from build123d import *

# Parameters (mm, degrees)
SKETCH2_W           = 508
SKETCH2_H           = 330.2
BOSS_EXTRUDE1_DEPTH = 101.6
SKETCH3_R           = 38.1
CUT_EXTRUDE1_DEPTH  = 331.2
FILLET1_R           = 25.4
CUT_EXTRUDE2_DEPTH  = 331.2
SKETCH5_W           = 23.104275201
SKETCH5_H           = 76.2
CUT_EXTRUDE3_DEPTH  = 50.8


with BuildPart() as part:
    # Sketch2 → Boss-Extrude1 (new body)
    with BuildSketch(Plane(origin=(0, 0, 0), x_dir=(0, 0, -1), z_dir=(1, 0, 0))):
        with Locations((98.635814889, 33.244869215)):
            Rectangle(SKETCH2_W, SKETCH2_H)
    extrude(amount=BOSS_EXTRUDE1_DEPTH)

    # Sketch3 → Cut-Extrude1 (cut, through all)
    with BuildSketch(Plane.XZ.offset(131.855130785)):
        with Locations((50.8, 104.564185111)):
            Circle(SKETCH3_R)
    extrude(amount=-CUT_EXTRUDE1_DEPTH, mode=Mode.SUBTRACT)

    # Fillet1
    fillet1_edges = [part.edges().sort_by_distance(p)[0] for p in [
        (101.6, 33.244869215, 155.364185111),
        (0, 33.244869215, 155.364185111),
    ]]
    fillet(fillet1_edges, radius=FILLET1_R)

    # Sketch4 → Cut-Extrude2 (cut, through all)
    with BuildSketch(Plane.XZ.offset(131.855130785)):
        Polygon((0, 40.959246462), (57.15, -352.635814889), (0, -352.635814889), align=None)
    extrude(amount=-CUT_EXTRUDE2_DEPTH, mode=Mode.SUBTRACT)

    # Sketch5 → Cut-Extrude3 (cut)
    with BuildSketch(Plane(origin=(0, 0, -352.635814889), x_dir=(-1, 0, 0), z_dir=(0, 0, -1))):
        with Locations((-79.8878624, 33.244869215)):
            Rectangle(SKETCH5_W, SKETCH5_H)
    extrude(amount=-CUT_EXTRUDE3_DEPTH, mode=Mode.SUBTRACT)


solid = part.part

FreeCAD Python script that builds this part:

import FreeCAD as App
import Part
import Sketcher

V = App.Vector
Q = App.Units.Quantity


def edges_at(feature, points):
    """Names of the edges that pass closest to the given points."""
    edges = feature.Shape.Edges
    near = lambda p: min(range(len(edges)), key=lambda i: edges[i].distToShape(Part.Vertex(*p))[0])
    return sorted({f"Edge{near(p) + 1}" for p in points})

doc = App.newDocument("Part")
body = doc.addObject("PartDesign::Body", "Body")

# Sketch on YZ plane
sketch1 = doc.addObject("Sketcher::SketchObject", "Sketch")
body.addObject(sketch1)
sketch1.AttachmentSupport = (doc.YZ_Plane, [""])
sketch1.MapMode = "FlatFace"
sketch1.addGeometry(Part.LineSegment(V(198, 155, 0), V(-132, 155, 0)), False)
sketch1.addGeometry(Part.LineSegment(V(-132, 155, 0), V(-132, -353, 0)), False)
sketch1.addGeometry(Part.LineSegment(V(-132, -353, 0), V(198, -353, 0)), False)
sketch1.addGeometry(Part.LineSegment(V(198, -353, 0), V(198, 155, 0)), False)
sketch1.addConstraint(Sketcher.Constraint("Coincident", 0, 2, 1, 1))
sketch1.addConstraint(Sketcher.Constraint("Coincident", 1, 2, 2, 1))
sketch1.addConstraint(Sketcher.Constraint("Coincident", 2, 2, 3, 1))
sketch1.addConstraint(Sketcher.Constraint("Coincident", 3, 2, 0, 1))
sketch1.addConstraint(Sketcher.Constraint("Horizontal", 0))
sketch1.addConstraint(Sketcher.Constraint("Vertical", 1))
sketch1.addConstraint(Sketcher.Constraint("Horizontal", 2))
sketch1.addConstraint(Sketcher.Constraint("Vertical", 3))
sketch1.addConstraint(Sketcher.Constraint("DistanceX", 0, 2, 0, 1, Q("13 in")))
sketch1.addConstraint(Sketcher.Constraint("DistanceY", 1, 2, 1, 1, Q("20 in")))
sketch1.addConstraint(Sketcher.Constraint("DistanceX", 0, 2, -1, 1, Q("131.855131 mm")))
sketch1.addConstraint(Sketcher.Constraint("DistanceY", -1, 1, 0, 2, Q("155.364185 mm")))
pad1 = doc.addObject("PartDesign::Pad", "Pad")
body.addObject(pad1)
pad1.Profile = sketch1
pad1.Length = Q("4 in")

# Sketch on XZ plane
sketch2 = doc.addObject("Sketcher::SketchObject", "Sketch001")
body.addObject(sketch2)
sketch2.AttachmentSupport = (doc.XZ_Plane, [""])
sketch2.MapMode = "FlatFace"
sketch2.AttachmentOffset = App.Placement(V(0, 0, 131.855131), App.Rotation())
sketch2.addGeometry(Part.Circle(V(51, 105, 0), V(0, 0, 1), 38), False)
sketch2.addConstraint(Sketcher.Constraint("Diameter", 0, Q("3 in")))
sketch2.addConstraint(Sketcher.Constraint("DistanceX", -1, 1, 0, 3, Q("2 in")))
sketch2.addConstraint(Sketcher.Constraint("DistanceY", -1, 1, 0, 3, Q("104.564185 mm")))
pocket1 = doc.addObject("PartDesign::Pocket", "Pocket")
body.addObject(pocket1)
pocket1.Profile = sketch2
pocket1.Type = "ThroughAll"
doc.recompute()

fillet = doc.addObject("PartDesign::Fillet", "Fillet")
body.addObject(fillet)
fillet.Base = (pocket1, edges_at(pocket1, [(101.6, 33.245, 155.364), (0, 33.245, 155.364)]))
fillet.Radius = Q("1 in")

# Sketch on XZ plane
sketch3 = doc.addObject("Sketcher::SketchObject", "Sketch002")
body.addObject(sketch3)
sketch3.AttachmentSupport = (doc.XZ_Plane, [""])
sketch3.MapMode = "FlatFace"
sketch3.AttachmentOffset = App.Placement(V(0, 0, 131.855131), App.Rotation())
sketch3.addGeometry(Part.LineSegment(V(57, -353, 0), V(0, 41, 0)), False)
sketch3.addGeometry(Part.LineSegment(V(0, 41, 0), V(0, -353, 0)), False)
sketch3.addGeometry(Part.LineSegment(V(0, -353, 0), V(57, -353, 0)), False)
sketch3.addConstraint(Sketcher.Constraint("Coincident", 0, 2, 1, 1))
sketch3.addConstraint(Sketcher.Constraint("Coincident", 1, 2, 2, 1))
sketch3.addConstraint(Sketcher.Constraint("Coincident", 2, 2, 0, 1))
sketch3.addConstraint(Sketcher.Constraint("Vertical", 1))
sketch3.addConstraint(Sketcher.Constraint("Horizontal", 2))
sketch3.addConstraint(Sketcher.Constraint("PointOnObject", 0, 2, -2))
sketch3.addConstraint(Sketcher.Constraint("DistanceX", 2, 1, 2, 2, Q("2.25 in")))
sketch3.addConstraint(Sketcher.Constraint("DistanceY", 1, 2, 1, 1, Q("393.595061 mm")))
sketch3.addConstraint(Sketcher.Constraint("DistanceY", -1, 1, 0, 2, Q("40.959246 mm")))
pocket2 = doc.addObject("PartDesign::Pocket", "Pocket001")
body.addObject(pocket2)
pocket2.Profile = sketch3
pocket2.Type = "ThroughAll"

# Sketch on XY plane
sketch4 = doc.addObject("Sketcher::SketchObject", "Sketch003")
body.addObject(sketch4)
sketch4.AttachmentSupport = (doc.XY_Plane, [""])
sketch4.MapMode = "FlatFace"
sketch4.AttachmentOffset = App.Placement(V(0, 0, -352.635815), App.Rotation())
sketch4.addGeometry(Part.LineSegment(V(91, 71, 0), V(91, -5, 0)), False)
sketch4.addGeometry(Part.LineSegment(V(91, -5, 0), V(68, -5, 0)), False)
sketch4.addGeometry(Part.LineSegment(V(68, -5, 0), V(68, 71, 0)), False)
sketch4.addGeometry(Part.LineSegment(V(68, 71, 0), V(91, 71, 0)), False)
sketch4.addConstraint(Sketcher.Constraint("Coincident", 0, 2, 1, 1))
sketch4.addConstraint(Sketcher.Constraint("Coincident", 1, 2, 2, 1))
sketch4.addConstraint(Sketcher.Constraint("Coincident", 2, 2, 3, 1))
sketch4.addConstraint(Sketcher.Constraint("Coincident", 3, 2, 0, 1))
sketch4.addConstraint(Sketcher.Constraint("Vertical", 0))
sketch4.addConstraint(Sketcher.Constraint("Horizontal", 1))
sketch4.addConstraint(Sketcher.Constraint("Vertical", 2))
sketch4.addConstraint(Sketcher.Constraint("Horizontal", 3))
sketch4.addConstraint(Sketcher.Constraint("DistanceY", 0, 2, 0, 1, Q("3 in")))
sketch4.addConstraint(Sketcher.Constraint("DistanceX", -1, 1, 0, 2, Q("3.6 in")))
sketch4.addConstraint(Sketcher.Constraint("DistanceX", 1, 2, 1, 1, Q("23.104275 mm")))
sketch4.addConstraint(Sketcher.Constraint("DistanceY", 0, 2, -1, 1, Q("4.855131 mm")))
pocket3 = doc.addObject("PartDesign::Pocket", "Pocket002")
body.addObject(pocket3)
pocket3.Profile = sketch4
pocket3.Length = Q("2 in")
pocket3.Reversed = True

doc.recompute()
